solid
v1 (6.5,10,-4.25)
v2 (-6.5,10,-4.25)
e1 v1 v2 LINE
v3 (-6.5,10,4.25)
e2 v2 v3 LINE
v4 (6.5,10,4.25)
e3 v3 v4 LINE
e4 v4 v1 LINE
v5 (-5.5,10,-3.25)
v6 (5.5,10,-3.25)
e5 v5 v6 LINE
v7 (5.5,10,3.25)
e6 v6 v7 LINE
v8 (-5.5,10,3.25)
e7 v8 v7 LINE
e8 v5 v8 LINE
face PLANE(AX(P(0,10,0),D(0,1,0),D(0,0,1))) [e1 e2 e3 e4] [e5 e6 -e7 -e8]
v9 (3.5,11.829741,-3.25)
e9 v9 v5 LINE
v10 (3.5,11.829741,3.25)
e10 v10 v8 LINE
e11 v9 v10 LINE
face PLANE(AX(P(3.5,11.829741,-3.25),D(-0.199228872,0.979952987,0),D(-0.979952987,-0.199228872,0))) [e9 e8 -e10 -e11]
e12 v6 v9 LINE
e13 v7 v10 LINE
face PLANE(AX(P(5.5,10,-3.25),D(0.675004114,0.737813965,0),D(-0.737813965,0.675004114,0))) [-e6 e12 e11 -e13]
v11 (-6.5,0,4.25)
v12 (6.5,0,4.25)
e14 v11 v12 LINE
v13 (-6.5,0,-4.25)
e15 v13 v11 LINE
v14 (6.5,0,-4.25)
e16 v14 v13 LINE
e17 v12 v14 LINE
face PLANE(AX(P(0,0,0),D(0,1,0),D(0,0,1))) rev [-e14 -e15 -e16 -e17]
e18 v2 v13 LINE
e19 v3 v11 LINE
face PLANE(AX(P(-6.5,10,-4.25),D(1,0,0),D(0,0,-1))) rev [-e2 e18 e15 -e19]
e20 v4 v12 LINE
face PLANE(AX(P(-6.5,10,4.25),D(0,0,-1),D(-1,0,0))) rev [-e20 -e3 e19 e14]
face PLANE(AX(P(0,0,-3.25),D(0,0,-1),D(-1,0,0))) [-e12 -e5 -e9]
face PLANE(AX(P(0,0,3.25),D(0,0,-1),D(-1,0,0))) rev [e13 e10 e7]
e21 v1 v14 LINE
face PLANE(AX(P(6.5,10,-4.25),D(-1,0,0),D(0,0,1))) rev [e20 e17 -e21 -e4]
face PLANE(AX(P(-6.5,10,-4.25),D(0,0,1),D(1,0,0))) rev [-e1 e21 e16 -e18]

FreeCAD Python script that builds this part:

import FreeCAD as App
import Part
import Sketcher

doc = App.newDocument("Part")
params = doc.addObject("Spreadsheet::Sheet", "Params")
for row, (alias, value) in enumerate([
    ("sketch1_width", "13 mm"),
    ("sketch1_height", "8.5 mm"),
    ("pad1_length", "10 mm"),
    ("sketch2_width", "11 mm"),
    ("pad2_length", "6.5 mm"),
], start=1):
    params.set(f"A{row}", alias)
    params.set(f"B{row}", "=" + value)
    params.setAlias(f"B{row}", alias)

body = doc.addObject("PartDesign::Body", "Body")

# Sketch on XZ plane
sketch1 = body.newObject("Sketcher::SketchObject", "Sketch")
sketch1.AttachmentSupport = (doc.getObject("XZ_Plane"), [""])
sketch1.MapMode = "FlatFace"
sketch1.addGeometry(Part.LineSegment(App.Vector(-6, -4, 0), App.Vector(-6, 4, 0)), False)
sketch1.addGeometry(Part.LineSegment(App.Vector(-6, 4, 0), App.Vector(6, 4, 0)), False)
sketch1.addGeometry(Part.LineSegment(App.Vector(6, 4, 0), App.Vector(6, -4, 0)), False)
sketch1.addGeometry(Part.LineSegment(App.Vector(6, -4, 0), App.Vector(-6, -4, 0)), False)
sketch1.addConstraint(Sketcher.Constraint("Coincident", 0, 2, 1, 1))
sketch1.addConstraint(Sketcher.Constraint("Coincident", 1, 2, 2, 1))
sketch1.addConstraint(Sketcher.Constraint("Coincident", 2, 2, 3, 1))
sketch1.addConstraint(Sketcher.Constraint("Coincident", 3, 2, 0, 1))
sketch1.addConstraint(Sketcher.Constraint("Vertical", 0))
sketch1.addConstraint(Sketcher.Constraint("Horizontal", 1))
sketch1.addConstraint(Sketcher.Constraint("Vertical", 2))
sketch1.addConstraint(Sketcher.Constraint("Horizontal", 3))
sketch1.addConstraint(Sketcher.Constraint("Symmetric", 0, 2, 2, 2, -1, 1))
sketch1.addConstraint(Sketcher.Constraint("DistanceX", 1, 1, 1, 2, 13.0))
sketch1.addConstraint(Sketcher.Constraint("DistanceY", 0, 1, 0, 2, 8.5))
sketch1.setExpression("Constraints[9]", "Params.sketch1_width")
sketch1.setExpression("Constraints[10]", "Params.sketch1_height")
pad1 = body.newObject("PartDesign::Pad", "Pad")
pad1.Profile = sketch1
pad1.setExpression("Length", "Params.pad1_length")
pad1.Reversed = True

# Sketch on XY plane
sketch2 = body.newObject("Sketcher::SketchObject", "Sketch001")
sketch2.AttachmentSupport = (doc.getObject("XY_Plane"), [""])
sketch2.MapMode = "FlatFace"
sketch2.AttachmentOffset = App.Placement(App.Vector(0, 0, 3.25), App.Rotation())
sketch2.addGeometry(Part.LineSegment(App.Vector(-5.5, 10, 0), App.Vector(5.5, 10, 0)), False)
sketch2.addGeometry(Part.LineSegment(App.Vector(5.5, 10, 0), App.Vector(3.5, 11.8, 0)), False)
sketch2.addGeometry(Part.LineSegment(App.Vector(3.5, 11.8, 0), App.Vector(-5.5, 10, 0)), False)
sketch2.addConstraint(Sketcher.Constraint("Coincident", 0, 2, 1, 1))
sketch2.addConstraint(Sketcher.Constraint("Coincident", 1, 2, 2, 1))
sketch2.addConstraint(Sketcher.Constraint("Coincident", 2, 2, 0, 1))
sketch2.addConstraint(Sketcher.Constraint("Horizontal", 0))
sketch2.addConstraint(Sketcher.Constraint("DistanceX", 0, 1, 0, 2, 11.0))
sketch2.addConstraint(Sketcher.Constraint("DistanceY", -1, 1, 0, 2, 10.0))
sketch2.addConstraint(Sketcher.Constraint("DistanceX", 1, 2, 0, 2, 2.0))
sketch2.addConstraint(Sketcher.Constraint("DistanceX", -1, 1, 0, 2, 5.5))
sketch2.addConstraint(Sketcher.Constraint("Distance", 1, 2.71071))
sketch2.setExpression("Constraints[4]", "Params.sketch2_width")
pad2 = body.newObject("PartDesign::Pad", "Pad001")
pad2.Profile = sketch2
pad2.setExpression("Length", "Params.pad2_length")
pad2.Reversed = True

doc.recompute()
